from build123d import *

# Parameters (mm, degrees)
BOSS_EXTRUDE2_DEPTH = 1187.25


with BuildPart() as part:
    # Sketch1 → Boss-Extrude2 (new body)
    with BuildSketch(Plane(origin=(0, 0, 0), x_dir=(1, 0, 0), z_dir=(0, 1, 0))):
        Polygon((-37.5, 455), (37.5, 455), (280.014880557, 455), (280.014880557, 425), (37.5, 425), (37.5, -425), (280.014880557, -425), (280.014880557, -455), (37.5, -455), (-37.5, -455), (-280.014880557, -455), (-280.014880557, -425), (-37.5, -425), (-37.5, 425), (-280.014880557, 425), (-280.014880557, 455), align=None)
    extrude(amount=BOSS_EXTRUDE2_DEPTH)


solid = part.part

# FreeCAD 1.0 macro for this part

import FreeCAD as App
import Part
import Sketcher
from FreeCAD import Vector
Q = App.Units.Quantity

doc = App.newDocument("Part")
params = doc.addObject("Spreadsheet::Sheet", "Params")
for row, (alias, value) in enumerate([
    ("sketch1_height", "30 mm"),
    ("sketch1_height2", "850 mm"),
    ("pad1_length", "1187.25 mm"),
], start=1):
    params.set(f"A{row}", alias)
    params.set(f"B{row}", "=" + value)
    params.setAlias(f"B{row}", alias)

body = doc.addObject("PartDesign::Body", "Body")

# Sketch on XZ plane
sketch1 = doc.addObject("Sketcher::SketchObject", "Sketch")
body.addObject(sketch1)
sketch1.AttachmentSupport = (doc.XZ_Plane, [""])
sketch1.MapMode = "FlatFace"
sketch1.addGeometry([
    Part.LineSegment(Vector(280, -455, 0), Vector(-280, -455, 0)),  # 0
    Part.LineSegment(Vector(-280, -455, 0), Vector(-280, -425, 0)),  # 1
    Part.LineSegment(Vector(-280, -425, 0), Vector(-38, -425, 0)),  # 2
    Part.LineSegment(Vector(-38, -425, 0), Vector(-38, 425, 0)),  # 3
    Part.LineSegment(Vector(-38, 425, 0), Vector(-280, 425, 0)),  # 4
    Part.LineSegment(Vector(-280, 425, 0), Vector(-280, 455, 0)),  # 5
    Part.LineSegment(Vector(-280, 455, 0), Vector(280, 455, 0)),  # 6
    Part.LineSegment(Vector(280, 455, 0), Vector(280, 425, 0)),  # 7
    Part.LineSegment(Vector(280, 425, 0), Vector(38, 425, 0)),  # 8
    Part.LineSegment(Vector(38, 425, 0), Vector(38, -425, 0)),  # 9
    Part.LineSegment(Vector(38, -425, 0), Vector(280, -425, 0)),  # 10
    Part.LineSegment(Vector(280, -425, 0), Vector(280, -455, 0)),  # 11
], False)
sketch1.addConstraint([
    Sketcher.Constraint("Coincident", 0, 2, 1, 1),
    Sketcher.Constraint("Coincident", 1, 2, 2, 1),
    Sketcher.Constraint("Coincident", 2, 2, 3, 1),
    Sketcher.Constraint("Coincident", 3, 2, 4, 1),
    Sketcher.Constraint("Coincident", 4, 2, 5, 1),
    Sketcher.Constraint("Coincident", 5, 2, 6, 1),
    Sketcher.Constraint("Coincident", 6, 2, 7, 1),
    Sketcher.Constraint("Coincident", 7, 2, 8, 1),
    Sketcher.Constraint("Coincident", 8, 2, 9, 1),
    Sketcher.Constraint("Coincident", 9, 2, 10, 1),
    Sketcher.Constraint("Coincident", 10, 2, 11, 1),
    Sketcher.Constraint("Coincident", 11, 2, 0, 1),
    Sketcher.Constraint("Horizontal", 0),
    Sketcher.Constraint("Vertical", 1),
    Sketcher.Constraint("Horizontal", 2),
    Sketcher.Constraint("Vertical", 3),
    Sketcher.Constraint("Horizontal", 4),
    Sketcher.Constraint("Vertical", 5),
    Sketcher.Constraint("Horizontal", 6),
    Sketcher.Constraint("Vertical", 7),
    Sketcher.Constraint("Horizontal", 8),
    Sketcher.Constraint("Vertical", 9),
    Sketcher.Constraint("Horizontal", 10),
    Sketcher.Constraint("Vertical", 11),
    Sketcher.Constraint("Symmetric", 0, 2, 6, 2, -1, 1),
    Sketcher.Constraint("Symmetric", 2, 2, 8, 2, -1, 1),
    Sketcher.Constraint("Symmetric", 4, 2, 10, 2, -1, 1),
    Sketcher.Constraint("Symmetric", 4, 2, 7, 2, -2),
    Sketcher.Constraint("DistanceY", 1, 1, 1, 2, Q("30 mm")),
    Sketcher.Constraint("DistanceY", 3, 1, 3, 2, Q("850 mm")),
    Sketcher.Constraint("DistanceX", 3, 2, 8, 2, Q("75 mm")),
    Sketcher.Constraint("DistanceX", 0, 2, 0, 1, Q("560.029761 mm")),
])
sketch1.setExpression("Constraints[28]", "Params.sketch1_height")
sketch1.setExpression("Constraints[29]", "Params.sketch1_height2")
pad1 = doc.addObject("PartDesign::Pad", "Pad")
body.addObject(pad1)
pad1.Profile = sketch1
pad1.setExpression("Length", "Params.pad1_length")
pad1.Reversed = True

doc.recompute()
